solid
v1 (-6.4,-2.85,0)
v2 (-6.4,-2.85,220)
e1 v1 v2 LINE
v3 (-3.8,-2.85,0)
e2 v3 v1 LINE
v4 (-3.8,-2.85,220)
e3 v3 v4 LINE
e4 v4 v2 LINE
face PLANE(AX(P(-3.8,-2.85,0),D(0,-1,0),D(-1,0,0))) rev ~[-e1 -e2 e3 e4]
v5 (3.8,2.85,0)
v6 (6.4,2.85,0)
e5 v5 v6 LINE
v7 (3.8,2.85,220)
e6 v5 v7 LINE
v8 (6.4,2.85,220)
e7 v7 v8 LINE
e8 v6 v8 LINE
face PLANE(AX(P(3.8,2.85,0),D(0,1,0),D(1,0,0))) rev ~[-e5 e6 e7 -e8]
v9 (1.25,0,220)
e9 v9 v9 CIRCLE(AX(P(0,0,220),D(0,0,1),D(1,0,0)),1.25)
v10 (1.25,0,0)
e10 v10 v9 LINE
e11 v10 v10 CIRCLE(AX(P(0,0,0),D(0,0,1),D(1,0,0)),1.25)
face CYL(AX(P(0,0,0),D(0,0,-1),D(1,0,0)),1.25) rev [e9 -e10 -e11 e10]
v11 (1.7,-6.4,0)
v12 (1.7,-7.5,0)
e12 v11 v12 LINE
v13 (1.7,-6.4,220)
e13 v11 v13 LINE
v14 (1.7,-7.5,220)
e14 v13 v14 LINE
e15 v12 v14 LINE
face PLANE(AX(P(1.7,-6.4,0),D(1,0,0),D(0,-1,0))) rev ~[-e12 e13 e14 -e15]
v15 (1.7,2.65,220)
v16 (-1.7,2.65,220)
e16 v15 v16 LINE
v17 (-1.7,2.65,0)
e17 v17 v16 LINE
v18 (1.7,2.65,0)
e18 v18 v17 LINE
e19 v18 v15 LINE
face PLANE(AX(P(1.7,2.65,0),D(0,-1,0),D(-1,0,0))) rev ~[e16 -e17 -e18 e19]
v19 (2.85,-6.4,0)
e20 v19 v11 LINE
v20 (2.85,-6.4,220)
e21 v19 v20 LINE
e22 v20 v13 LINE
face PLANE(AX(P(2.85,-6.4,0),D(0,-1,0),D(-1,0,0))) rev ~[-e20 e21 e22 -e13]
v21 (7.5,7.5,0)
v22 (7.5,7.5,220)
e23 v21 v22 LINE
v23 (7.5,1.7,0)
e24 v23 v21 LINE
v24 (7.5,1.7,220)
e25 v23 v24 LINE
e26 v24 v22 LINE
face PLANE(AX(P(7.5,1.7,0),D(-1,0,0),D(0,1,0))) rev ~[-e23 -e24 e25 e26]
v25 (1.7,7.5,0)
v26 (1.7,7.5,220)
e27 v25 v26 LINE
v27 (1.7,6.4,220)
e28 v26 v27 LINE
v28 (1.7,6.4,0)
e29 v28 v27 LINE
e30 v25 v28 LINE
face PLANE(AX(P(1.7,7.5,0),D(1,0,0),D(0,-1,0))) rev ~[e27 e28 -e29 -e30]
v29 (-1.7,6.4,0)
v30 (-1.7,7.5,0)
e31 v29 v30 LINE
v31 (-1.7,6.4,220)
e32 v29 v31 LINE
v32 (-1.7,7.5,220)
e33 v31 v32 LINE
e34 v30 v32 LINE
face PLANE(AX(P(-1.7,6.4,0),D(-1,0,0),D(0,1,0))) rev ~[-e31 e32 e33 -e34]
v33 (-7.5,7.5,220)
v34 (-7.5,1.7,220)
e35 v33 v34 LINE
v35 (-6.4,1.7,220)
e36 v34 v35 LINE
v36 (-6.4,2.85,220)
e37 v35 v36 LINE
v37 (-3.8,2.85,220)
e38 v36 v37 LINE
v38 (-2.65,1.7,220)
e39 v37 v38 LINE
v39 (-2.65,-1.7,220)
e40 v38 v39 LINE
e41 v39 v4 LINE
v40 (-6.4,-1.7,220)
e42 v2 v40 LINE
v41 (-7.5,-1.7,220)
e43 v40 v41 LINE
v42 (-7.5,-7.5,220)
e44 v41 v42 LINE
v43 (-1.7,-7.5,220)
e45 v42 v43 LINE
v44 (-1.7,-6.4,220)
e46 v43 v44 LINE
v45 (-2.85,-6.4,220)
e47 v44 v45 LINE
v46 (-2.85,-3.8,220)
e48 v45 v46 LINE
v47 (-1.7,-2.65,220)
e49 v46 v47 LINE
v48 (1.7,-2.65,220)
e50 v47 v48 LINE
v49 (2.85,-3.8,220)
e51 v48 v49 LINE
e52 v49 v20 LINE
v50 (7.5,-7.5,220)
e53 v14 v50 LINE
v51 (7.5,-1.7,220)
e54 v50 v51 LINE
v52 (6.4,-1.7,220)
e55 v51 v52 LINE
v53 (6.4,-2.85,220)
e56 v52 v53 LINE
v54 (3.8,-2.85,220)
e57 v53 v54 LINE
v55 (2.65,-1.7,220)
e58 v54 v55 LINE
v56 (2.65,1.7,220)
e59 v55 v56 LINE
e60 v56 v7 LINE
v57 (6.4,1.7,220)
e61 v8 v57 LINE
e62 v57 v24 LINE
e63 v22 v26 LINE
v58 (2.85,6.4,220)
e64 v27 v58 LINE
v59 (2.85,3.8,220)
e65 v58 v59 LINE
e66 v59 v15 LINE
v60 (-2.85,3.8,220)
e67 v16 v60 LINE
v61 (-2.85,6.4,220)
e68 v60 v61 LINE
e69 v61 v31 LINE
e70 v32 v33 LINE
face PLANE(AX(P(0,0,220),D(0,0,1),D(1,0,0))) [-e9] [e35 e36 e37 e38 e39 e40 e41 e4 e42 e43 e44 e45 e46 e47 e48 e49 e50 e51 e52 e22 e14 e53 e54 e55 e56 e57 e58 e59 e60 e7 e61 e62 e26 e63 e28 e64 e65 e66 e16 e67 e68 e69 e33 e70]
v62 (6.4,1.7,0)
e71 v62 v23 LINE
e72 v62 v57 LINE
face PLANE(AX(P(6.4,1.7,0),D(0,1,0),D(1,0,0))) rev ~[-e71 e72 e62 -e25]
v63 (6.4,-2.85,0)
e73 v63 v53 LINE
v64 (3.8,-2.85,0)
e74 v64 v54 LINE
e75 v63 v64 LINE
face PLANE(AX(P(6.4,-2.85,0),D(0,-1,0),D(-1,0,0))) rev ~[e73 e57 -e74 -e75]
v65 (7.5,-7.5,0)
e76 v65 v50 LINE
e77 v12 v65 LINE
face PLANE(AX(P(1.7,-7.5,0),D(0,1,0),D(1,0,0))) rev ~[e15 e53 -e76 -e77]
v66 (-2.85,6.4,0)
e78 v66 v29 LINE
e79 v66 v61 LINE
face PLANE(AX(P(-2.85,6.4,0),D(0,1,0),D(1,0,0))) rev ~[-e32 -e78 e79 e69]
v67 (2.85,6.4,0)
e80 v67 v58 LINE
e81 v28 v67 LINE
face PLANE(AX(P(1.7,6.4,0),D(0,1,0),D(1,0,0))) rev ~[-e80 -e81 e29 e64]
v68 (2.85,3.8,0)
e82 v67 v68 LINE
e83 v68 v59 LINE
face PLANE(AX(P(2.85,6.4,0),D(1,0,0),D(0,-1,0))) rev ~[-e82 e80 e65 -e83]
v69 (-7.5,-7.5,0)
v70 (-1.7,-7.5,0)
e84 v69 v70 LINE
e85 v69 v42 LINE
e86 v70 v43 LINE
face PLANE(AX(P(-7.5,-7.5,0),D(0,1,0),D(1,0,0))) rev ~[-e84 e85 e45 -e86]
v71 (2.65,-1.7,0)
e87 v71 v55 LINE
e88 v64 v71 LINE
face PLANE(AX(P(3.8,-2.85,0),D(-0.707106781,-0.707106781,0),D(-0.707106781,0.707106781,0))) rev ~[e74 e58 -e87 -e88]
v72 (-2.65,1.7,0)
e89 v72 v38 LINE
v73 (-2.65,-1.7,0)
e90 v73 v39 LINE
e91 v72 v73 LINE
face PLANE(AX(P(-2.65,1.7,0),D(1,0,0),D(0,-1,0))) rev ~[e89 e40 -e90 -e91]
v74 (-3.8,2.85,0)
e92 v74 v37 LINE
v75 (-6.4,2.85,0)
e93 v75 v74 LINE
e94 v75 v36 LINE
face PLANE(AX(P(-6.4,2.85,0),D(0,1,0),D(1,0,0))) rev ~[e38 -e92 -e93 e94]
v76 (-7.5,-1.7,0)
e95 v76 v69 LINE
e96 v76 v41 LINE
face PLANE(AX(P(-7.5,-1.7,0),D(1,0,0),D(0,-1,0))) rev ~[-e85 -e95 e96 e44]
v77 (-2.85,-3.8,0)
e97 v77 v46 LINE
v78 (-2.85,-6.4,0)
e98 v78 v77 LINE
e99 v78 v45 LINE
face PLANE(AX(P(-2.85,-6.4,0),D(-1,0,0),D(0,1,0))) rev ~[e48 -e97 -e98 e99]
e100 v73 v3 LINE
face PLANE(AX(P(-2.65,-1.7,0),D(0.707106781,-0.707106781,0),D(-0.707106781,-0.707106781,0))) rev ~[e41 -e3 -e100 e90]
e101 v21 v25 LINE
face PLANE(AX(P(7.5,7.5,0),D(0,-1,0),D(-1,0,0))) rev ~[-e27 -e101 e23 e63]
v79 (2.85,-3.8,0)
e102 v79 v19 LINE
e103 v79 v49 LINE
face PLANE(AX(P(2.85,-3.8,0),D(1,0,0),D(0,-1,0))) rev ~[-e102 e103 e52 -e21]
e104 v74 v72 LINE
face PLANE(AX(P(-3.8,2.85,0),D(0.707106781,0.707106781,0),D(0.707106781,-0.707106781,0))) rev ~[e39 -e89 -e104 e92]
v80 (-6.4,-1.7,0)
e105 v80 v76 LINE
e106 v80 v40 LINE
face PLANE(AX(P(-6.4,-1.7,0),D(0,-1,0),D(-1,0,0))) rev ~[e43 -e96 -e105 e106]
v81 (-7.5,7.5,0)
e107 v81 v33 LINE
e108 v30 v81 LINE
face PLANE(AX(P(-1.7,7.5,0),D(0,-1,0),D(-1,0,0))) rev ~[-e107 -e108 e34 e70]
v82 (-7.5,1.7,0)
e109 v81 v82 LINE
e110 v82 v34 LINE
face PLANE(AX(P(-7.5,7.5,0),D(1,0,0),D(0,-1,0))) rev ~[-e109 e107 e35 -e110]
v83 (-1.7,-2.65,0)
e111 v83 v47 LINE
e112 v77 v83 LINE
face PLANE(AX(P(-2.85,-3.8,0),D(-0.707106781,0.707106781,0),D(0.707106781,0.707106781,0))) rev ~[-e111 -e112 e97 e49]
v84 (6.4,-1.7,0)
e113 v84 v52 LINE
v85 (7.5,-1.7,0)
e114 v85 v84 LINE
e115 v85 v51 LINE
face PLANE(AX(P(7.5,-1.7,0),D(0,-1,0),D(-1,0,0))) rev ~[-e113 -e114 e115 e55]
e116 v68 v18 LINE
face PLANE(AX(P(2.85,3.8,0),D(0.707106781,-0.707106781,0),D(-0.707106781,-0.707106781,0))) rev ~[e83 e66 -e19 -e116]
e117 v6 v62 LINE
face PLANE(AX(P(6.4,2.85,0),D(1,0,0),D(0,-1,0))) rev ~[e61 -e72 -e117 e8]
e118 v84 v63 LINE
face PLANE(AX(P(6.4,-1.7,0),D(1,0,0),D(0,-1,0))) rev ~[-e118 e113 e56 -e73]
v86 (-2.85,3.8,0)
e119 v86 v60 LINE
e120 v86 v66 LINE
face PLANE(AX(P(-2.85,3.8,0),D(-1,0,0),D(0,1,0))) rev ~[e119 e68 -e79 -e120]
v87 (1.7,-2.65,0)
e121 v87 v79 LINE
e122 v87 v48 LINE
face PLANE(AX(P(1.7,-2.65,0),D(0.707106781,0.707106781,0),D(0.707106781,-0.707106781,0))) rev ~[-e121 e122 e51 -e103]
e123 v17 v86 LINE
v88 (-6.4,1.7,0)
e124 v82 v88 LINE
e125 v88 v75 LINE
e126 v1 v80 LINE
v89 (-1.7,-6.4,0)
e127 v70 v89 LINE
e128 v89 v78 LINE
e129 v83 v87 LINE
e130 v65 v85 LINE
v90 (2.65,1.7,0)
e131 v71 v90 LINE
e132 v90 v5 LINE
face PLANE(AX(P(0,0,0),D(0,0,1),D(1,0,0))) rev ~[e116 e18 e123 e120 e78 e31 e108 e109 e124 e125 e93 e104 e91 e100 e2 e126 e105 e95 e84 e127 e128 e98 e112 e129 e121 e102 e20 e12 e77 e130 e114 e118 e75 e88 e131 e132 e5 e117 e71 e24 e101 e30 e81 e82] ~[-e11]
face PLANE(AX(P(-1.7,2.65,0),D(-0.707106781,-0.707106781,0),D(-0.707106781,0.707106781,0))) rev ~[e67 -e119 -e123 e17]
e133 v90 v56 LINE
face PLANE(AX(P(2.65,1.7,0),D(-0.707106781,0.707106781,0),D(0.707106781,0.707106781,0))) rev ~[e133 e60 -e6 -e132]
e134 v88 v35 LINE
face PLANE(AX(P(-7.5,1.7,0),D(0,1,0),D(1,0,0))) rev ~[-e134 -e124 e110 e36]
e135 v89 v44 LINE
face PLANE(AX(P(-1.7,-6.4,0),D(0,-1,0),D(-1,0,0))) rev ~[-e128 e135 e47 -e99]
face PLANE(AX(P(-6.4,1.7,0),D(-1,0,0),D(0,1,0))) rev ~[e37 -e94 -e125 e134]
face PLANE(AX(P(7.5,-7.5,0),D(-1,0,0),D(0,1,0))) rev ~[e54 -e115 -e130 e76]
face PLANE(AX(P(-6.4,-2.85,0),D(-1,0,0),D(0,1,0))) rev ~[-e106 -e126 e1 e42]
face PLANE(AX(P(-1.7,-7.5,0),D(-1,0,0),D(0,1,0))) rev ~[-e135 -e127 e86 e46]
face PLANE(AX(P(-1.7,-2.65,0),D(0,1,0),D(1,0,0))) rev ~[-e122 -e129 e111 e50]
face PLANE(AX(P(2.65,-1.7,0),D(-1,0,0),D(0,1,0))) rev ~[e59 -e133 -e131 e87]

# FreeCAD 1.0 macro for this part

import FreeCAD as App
import Part
import Sketcher
from FreeCAD import Vector
Q = App.Units.Quantity


def add_polygon(sketch, points):
    """Adds a closed chain of lines whose ends are joined by coincident constraints."""
    first, n = sketch.GeometryCount, len(points)
    for a, b in zip(points, points[1:] + points[:1]):
        sketch.addGeometry(Part.LineSegment(App.Vector(*a, 0), App.Vector(*b, 0)), False)
    for i in range(n):
        sketch.addConstraint(Sketcher.Constraint("Coincident", first + i, 2, first + (i + 1) % n, 1))

doc = App.newDocument("Part")
body = doc.addObject("PartDesign::Body", "Body")

sketch1 = body.newObject("Sketcher::SketchObject", "Sketch")
sketch1.AttachmentSupport = (doc.getObject("XY_Plane"), [""])
sketch1.MapMode = "FlatFace"
add_polygon(sketch1, [(1.7, 2.6), (-1.7, 2.6), (-2.9, 3.8), (-2.9, 6.4), (-1.7, 6.4), (-1.7, 7.5), (-7.5, 7.5), (-7.5, 1.7), (-6.4, 1.7), (-6.4, 2.9), (-3.8, 2.9), (-2.6, 1.7), (-2.6, -1.7), (-3.8, -2.9), (-6.4, -2.9), (-6.4, -1.7), (-7.5, -1.7), (-7.5, -7.5), (-1.7, -7.5), (-1.7, -6.4), (-2.9, -6.4), (-2.9, -3.8), (-1.7, -2.6), (1.7, -2.6), (2.9, -3.8), (2.9, -6.4), (1.7, -6.4), (1.7, -7.5), (7.5, -7.5), (7.5, -1.7), (6.4, -1.7), (6.4, -2.9), (3.8, -2.9), (2.6, -1.7), (2.6, 1.7), (3.8, 2.9), (6.4, 2.9), (6.4, 1.7), (7.5, 1.7), (7.5, 7.5), (1.7, 7.5), (1.7, 6.4), (2.9, 6.4), (2.9, 3.8)])
sketch1.addGeometry(Part.Circle(Vector(0, 0, 0), Vector(0, 0, 1), 1.2), False)
sketch1.addConstraint(Sketcher.Constraint("Horizontal", 0))
sketch1.addConstraint(Sketcher.Constraint("Vertical", 2))
sketch1.addConstraint(Sketcher.Constraint("Horizontal", 3))
sketch1.addConstraint(Sketcher.Constraint("Vertical", 4))
sketch1.addConstraint(Sketcher.Constraint("Horizontal", 5))
sketch1.addConstraint(Sketcher.Constraint("Vertical", 6))
sketch1.addConstraint(Sketcher.Constraint("Horizontal", 7))
sketch1.addConstraint(Sketcher.Constraint("Vertical", 8))
sketch1.addConstraint(Sketcher.Constraint("Horizontal", 9))
sketch1.addConstraint(Sketcher.Constraint("Vertical", 11))
sketch1.addConstraint(Sketcher.Constraint("Horizontal", 13))
sketch1.addConstraint(Sketcher.Constraint("Vertical", 14))
sketch1.addConstraint(Sketcher.Constraint("Horizontal", 15))
sketch1.addConstraint(Sketcher.Constraint("Vertical", 16))
sketch1.addConstraint(Sketcher.Constraint("Horizontal", 17))
sketch1.addConstraint(Sketcher.Constraint("Vertical", 18))
sketch1.addConstraint(Sketcher.Constraint("Horizontal", 19))
sketch1.addConstraint(Sketcher.Constraint("Vertical", 20))
sketch1.addConstraint(Sketcher.Constraint("Horizontal", 22))
sketch1.addConstraint(Sketcher.Constraint("Vertical", 24))
sketch1.addConstraint(Sketcher.Constraint("Horizontal", 25))
sketch1.addConstraint(Sketcher.Constraint("Vertical", 26))
sketch1.addConstraint(Sketcher.Constraint("Horizontal", 27))
sketch1.addConstraint(Sketcher.Constraint("Vertical", 28))
sketch1.addConstraint(Sketcher.Constraint("Horizontal", 29))
sketch1.addConstraint(Sketcher.Constraint("Vertical", 30))
sketch1.addConstraint(Sketcher.Constraint("Horizontal", 31))
sketch1.addConstraint(Sketcher.Constraint("Vertical", 33))
sketch1.addConstraint(Sketcher.Constraint("Horizontal", 35))
sketch1.addConstraint(Sketcher.Constraint("Vertical", 36))
sketch1.addConstraint(Sketcher.Constraint("Horizontal", 37))
sketch1.addConstraint(Sketcher.Constraint("Vertical", 38))
sketch1.addConstraint(Sketcher.Constraint("Horizontal", 39))
sketch1.addConstraint(Sketcher.Constraint("Vertical", 40))
sketch1.addConstraint(Sketcher.Constraint("Horizontal", 41))
sketch1.addConstraint(Sketcher.Constraint("Vertical", 42))
sketch1.addConstraint(Sketcher.Constraint("Coincident", 44, 3, -1, 1))
sketch1.addConstraint(Sketcher.Constraint("Symmetric", 0, 2, 22, 2, -1, 1))
sketch1.addConstraint(Sketcher.Constraint("Symmetric", 1, 2, 23, 2, -1, 1))
sketch1.addConstraint(Sketcher.Constraint("Symmetric", 3, 2, 25, 2, -1, 1))
sketch1.addConstraint(Sketcher.Constraint("Symmetric", 5, 2, 27, 2, -1, 1))
sketch1.addConstraint(Sketcher.Constraint("Symmetric", 7, 2, 29, 2, -1, 1))
sketch1.addConstraint(Sketcher.Constraint("Symmetric", 9, 2, 31, 2, -1, 1))
sketch1.addConstraint(Sketcher.Constraint("Symmetric", 10, 2, 32, 2, -1, 1))
sketch1.addConstraint(Sketcher.Constraint("Symmetric", 12, 2, 34, 2, -1, 1))
sketch1.addConstraint(Sketcher.Constraint("Symmetric", 14, 2, 36, 2, -1, 1))
sketch1.addConstraint(Sketcher.Constraint("Symmetric", 16, 2, 38, 2, -1, 1))
sketch1.addConstraint(Sketcher.Constraint("Symmetric", 18, 2, 40, 2, -1, 1))
sketch1.addConstraint(Sketcher.Constraint("Symmetric", 20, 2, 42, 2, -1, 1))
sketch1.addConstraint(Sketcher.Constraint("Symmetric", 20, 2, 23, 2, -2))
sketch1.addConstraint(Sketcher.Constraint("Symmetric", 18, 2, 25, 2, -2))
sketch1.addConstraint(Sketcher.Constraint("Symmetric", 16, 2, 27, 2, -2))
sketch1.addConstraint(Sketcher.Constraint("Symmetric", 14, 2, 29, 2, -2))
sketch1.addConstraint(Sketcher.Constraint("Symmetric", 12, 2, 31, 2, -2))
sketch1.addConstraint(Sketcher.Constraint("Parallel", 1, 10))
sketch1.addConstraint(Sketcher.Constraint("Perpendicular", 10, 12))
sketch1.addConstraint(Sketcher.Constraint("Parallel", 12, 21))
sketch1.addConstraint(Sketcher.Constraint("Perpendicular", 32, 34))
sketch1.addConstraint(Sketcher.Constraint("Parallel", 34, 43))
sketch1.addConstraint(Sketcher.Constraint("Horizontal", 7, 2, 10, 2))
sketch1.addConstraint(Sketcher.Constraint("Horizontal", 11, 2, 14, 2))
sketch1.addConstraint(Sketcher.Constraint("Vertical", 0, 2, 3, 2))
sketch1.addConstraint(Sketcher.Constraint("Equal", 35, 2))
sketch1.addConstraint(Sketcher.Constraint("Equal", 37, 4))
sketch1.addConstraint(Sketcher.Constraint("Equal", 39, 6))
sketch1.addConstraint(Sketcher.Constraint("Equal", 41, 8))
sketch1.addConstraint(Sketcher.Constraint("Equal", 22, 11))
sketch1.addConstraint(Sketcher.Constraint("Diameter", 44, Q("2.5 mm")))
sketch1.addConstraint(Sketcher.Constraint("DistanceX", 0, 2, 0, 1, Q("3.4 mm")))
sketch1.addConstraint(Sketcher.Constraint("DistanceX", 5, 2, 5, 1, Q("5.8 mm")))
sketch1.addConstraint(Sketcher.Constraint("DistanceX", 7, 1, 7, 2, Q("1.1 mm")))
sketch1.addConstraint(Sketcher.Constraint("DistanceX", 9, 1, 9, 2, Q("2.6 mm")))
sketch1.addConstraint(Sketcher.Constraint("DistanceX", 3, 1, 3, 2, Q("1.15 mm")))
pad1 = body.newObject("PartDesign::Pad", "Pad")
pad1.Profile = sketch1
pad1.Length = 220

doc.recompute()
